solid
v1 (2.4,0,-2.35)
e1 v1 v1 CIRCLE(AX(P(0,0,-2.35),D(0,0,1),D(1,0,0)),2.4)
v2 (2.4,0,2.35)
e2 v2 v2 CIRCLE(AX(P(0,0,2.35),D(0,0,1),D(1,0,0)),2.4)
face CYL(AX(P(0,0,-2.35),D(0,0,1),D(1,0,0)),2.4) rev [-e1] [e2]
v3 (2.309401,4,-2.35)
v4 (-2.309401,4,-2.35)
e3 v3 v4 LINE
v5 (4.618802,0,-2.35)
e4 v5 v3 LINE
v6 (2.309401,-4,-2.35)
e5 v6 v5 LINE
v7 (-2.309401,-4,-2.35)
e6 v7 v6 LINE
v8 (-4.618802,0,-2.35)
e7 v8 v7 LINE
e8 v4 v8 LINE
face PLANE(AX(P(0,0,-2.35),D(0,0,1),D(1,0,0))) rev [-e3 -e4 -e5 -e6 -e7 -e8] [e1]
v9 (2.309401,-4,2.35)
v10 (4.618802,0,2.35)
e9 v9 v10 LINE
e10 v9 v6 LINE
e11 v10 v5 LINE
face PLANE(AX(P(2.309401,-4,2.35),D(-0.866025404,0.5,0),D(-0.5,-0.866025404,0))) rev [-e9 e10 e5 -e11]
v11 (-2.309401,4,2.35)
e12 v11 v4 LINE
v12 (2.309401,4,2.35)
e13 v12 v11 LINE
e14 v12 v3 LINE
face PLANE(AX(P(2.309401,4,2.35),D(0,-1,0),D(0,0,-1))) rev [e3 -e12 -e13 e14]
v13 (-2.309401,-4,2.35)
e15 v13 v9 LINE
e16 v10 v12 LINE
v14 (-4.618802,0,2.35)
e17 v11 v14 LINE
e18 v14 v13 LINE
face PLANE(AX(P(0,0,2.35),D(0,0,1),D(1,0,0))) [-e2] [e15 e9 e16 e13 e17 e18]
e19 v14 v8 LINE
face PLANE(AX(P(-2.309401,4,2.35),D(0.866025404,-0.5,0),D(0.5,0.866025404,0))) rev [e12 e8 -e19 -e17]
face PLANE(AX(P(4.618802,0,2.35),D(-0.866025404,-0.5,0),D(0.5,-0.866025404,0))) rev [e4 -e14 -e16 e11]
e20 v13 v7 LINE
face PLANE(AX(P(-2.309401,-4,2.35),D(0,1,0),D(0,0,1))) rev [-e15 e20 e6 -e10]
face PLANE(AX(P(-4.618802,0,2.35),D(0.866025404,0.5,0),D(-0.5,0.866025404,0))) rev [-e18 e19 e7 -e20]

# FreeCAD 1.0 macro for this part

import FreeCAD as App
import Part
import Sketcher
Q = App.Units.Quantity


def add_polygon(sketch, points):
    """Adds a closed chain of lines whose ends are joined by coincident constraints."""
    first, n = sketch.GeometryCount, len(points)
    for a, b in zip(points, points[1:] + points[:1]):
        sketch.addGeometry(Part.LineSegment(App.Vector(*a, 0), App.Vector(*b, 0)), False)
    for i in range(n):
        sketch.addConstraint(Sketcher.Constraint("Coincident", first + i, 2, first + (i + 1) % n, 1))

doc = App.newDocument("Part")
body = doc.addObject("PartDesign::Body", "Body")

# Sketch on XY plane
sketch1 = body.newObject("Sketcher::SketchObject", "Sketch")
sketch1.AttachmentSupport = (doc.getObject("XY_Plane"), [""])
sketch1.MapMode = "FlatFace"
add_polygon(sketch1, [(4.6, 0), (2.3, 4), (-2.3, 4), (-4.6, 0), (-2.3, -4), (2.3, -4)])  # lines 0-5
sketch1.addConstraint([
    Sketcher.Constraint("Horizontal", 1),
    Sketcher.Constraint("Horizontal", 4),
    Sketcher.Constraint("Symmetric", 0, 2, 3, 2, -1, 1),
    Sketcher.Constraint("Symmetric", 2, 2, 5, 2, -1, 1),
    Sketcher.Constraint("PointOnObject", 2, 2, -1),
    Sketcher.Constraint("Parallel", 2, 5),
    Sketcher.Constraint("Vertical", 1, 2, 3, 2),
    Sketcher.Constraint("Angle", 0, Q("120 deg")),
    Sketcher.Constraint("DistanceY", -1, 1, 0, 2, 4.0),
    Sketcher.Constraint("DistanceX", -1, 1, 0, 2, 2.309401),
])
pad1 = body.newObject("PartDesign::Pad", "Pad")
pad1.Profile = sketch1
pad1.Length = 4.7
pad1.Midplane = True

# Sketch on XY plane
sketch2 = body.newObject("Sketcher::SketchObject", "Sketch001")
sketch2.AttachmentSupport = (doc.getObject("XY_Plane"), [""])
sketch2.MapMode = "FlatFace"
sketch2.AttachmentOffset = App.Placement(App.Vector(0, 0, 2.35), App.Rotation())
sketch2.addGeometry(Part.Circle(App.Vector(0, 0, 0), App.Vector(0, 0, 1), 2.4), False)
sketch2.addConstraint([
    Sketcher.Constraint("Coincident", 0, 3, -1, 1),
    Sketcher.Constraint("Diameter", 0, 4.8),
])
pocket1 = body.newObject("PartDesign::Pocket", "Pocket")
pocket1.Profile = sketch2
pocket1.Type = "ThroughAll"

doc.recompute()
